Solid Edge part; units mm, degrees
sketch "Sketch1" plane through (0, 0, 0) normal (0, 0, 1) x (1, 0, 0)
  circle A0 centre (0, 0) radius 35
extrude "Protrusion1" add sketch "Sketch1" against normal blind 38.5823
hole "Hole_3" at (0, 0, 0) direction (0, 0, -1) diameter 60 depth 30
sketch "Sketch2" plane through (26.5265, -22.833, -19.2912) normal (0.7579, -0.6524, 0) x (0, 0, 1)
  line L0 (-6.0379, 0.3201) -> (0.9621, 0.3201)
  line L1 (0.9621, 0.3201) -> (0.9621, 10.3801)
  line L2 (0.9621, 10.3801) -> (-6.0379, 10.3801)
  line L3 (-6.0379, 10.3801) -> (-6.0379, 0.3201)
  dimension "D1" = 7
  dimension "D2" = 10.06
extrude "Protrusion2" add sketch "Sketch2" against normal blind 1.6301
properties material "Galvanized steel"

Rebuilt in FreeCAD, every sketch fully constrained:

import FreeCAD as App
import Part
import Sketcher

V = App.Vector
Q = App.Units.Quantity


def add_polygon(sketch, points):
    """Adds a closed chain of lines whose ends are joined by coincident constraints."""
    first, n = sketch.GeometryCount, len(points)
    for a, b in zip(points, points[1:] + points[:1]):
        sketch.addGeometry(Part.LineSegment(App.Vector(*a, 0), App.Vector(*b, 0)), False)
    for i in range(n):
        sketch.addConstraint(Sketcher.Constraint("Coincident", first + i, 2, first + (i + 1) % n, 1))

doc = App.newDocument("Part")
body = doc.addObject("PartDesign::Body", "Body")

# Sketch on XY plane
sketch1 = doc.addObject("Sketcher::SketchObject", "Sketch")
body.addObject(sketch1)
sketch1.AttachmentSupport = (doc.XY_Plane, [""])
sketch1.MapMode = "FlatFace"
sketch1.addGeometry(Part.Circle(V(0, 0, 0), V(0, 0, 1), 35), False)
sketch1.addConstraint([
    Sketcher.Constraint("Coincident", 0, 3, -1, 1),
    Sketcher.Constraint("Diameter", 0, Q("2.7559 in")),
])
pad1 = doc.addObject("PartDesign::Pad", "Pad")
body.addObject(pad1)
pad1.Profile = sketch1
pad1.Length = Q("1.5189882 in")
pad1.Reversed = True

# Sketch on XY plane
sketch2 = doc.addObject("Sketcher::SketchObject", "Sketch001")
body.addObject(sketch2)
sketch2.AttachmentSupport = (doc.XY_Plane, [""])
sketch2.MapMode = "FlatFace"
sketch2.addGeometry(Part.Circle(V(0, 0, 0), V(0, 0, 1), 30), False)
sketch2.addConstraint([
    Sketcher.Constraint("Coincident", 0, 3, -1, 1),
    Sketcher.Constraint("Diameter", 0, Q("2.3622 in")),
])
doc.recompute()
hole = doc.addObject("PartDesign::Hole", "Hole")
body.addObject(hole)
hole.Profile = sketch2
hole.ThreadType = "None"
hole.Diameter = Q("2.3622047 in")
hole.DepthType = "Dimension"
hole.Depth = Q("1.1811024 in")
hole.DrillPoint = "Flat"

# Sketch on an angled plane
sketch3 = doc.addObject("Sketcher::SketchObject", "Sketch002")
body.addObject(sketch3)
sketch3.Placement = App.Placement(V(26.5265, -22.833, -19.2912), App.Rotation(V(0, 0, 1), V(-0.652387549, -0.757885536, 0), V(0.757885536, -0.652387549, 0), "ZXY"))
add_polygon(sketch3, [(-6, 10), (-6, 0), (1, 0), (1, 10)])  # lines 0-3
sketch3.addConstraint([
    Sketcher.Constraint("Vertical", 0),
    Sketcher.Constraint("Horizontal", 1),
    Sketcher.Constraint("Vertical", 2),
    Sketcher.Constraint("Horizontal", 3),
    Sketcher.Constraint("DistanceX", 1, 1, 1, 2, Q("0.2756 in")),
    Sketcher.Constraint("DistanceY", 0, 2, 0, 1, Q("10.06 mm")),
    Sketcher.Constraint("DistanceY", -1, 1, 0, 2, Q("0.0126 in")),
    Sketcher.Constraint("DistanceX", 0, 2, -1, 1, Q("6.038 mm")),
])
pad2 = doc.addObject("PartDesign::Pad", "Pad001")
body.addObject(pad2)
pad2.Profile = sketch3
pad2.Length = 1.6301
pad2.Reversed = True

doc.recompute()
